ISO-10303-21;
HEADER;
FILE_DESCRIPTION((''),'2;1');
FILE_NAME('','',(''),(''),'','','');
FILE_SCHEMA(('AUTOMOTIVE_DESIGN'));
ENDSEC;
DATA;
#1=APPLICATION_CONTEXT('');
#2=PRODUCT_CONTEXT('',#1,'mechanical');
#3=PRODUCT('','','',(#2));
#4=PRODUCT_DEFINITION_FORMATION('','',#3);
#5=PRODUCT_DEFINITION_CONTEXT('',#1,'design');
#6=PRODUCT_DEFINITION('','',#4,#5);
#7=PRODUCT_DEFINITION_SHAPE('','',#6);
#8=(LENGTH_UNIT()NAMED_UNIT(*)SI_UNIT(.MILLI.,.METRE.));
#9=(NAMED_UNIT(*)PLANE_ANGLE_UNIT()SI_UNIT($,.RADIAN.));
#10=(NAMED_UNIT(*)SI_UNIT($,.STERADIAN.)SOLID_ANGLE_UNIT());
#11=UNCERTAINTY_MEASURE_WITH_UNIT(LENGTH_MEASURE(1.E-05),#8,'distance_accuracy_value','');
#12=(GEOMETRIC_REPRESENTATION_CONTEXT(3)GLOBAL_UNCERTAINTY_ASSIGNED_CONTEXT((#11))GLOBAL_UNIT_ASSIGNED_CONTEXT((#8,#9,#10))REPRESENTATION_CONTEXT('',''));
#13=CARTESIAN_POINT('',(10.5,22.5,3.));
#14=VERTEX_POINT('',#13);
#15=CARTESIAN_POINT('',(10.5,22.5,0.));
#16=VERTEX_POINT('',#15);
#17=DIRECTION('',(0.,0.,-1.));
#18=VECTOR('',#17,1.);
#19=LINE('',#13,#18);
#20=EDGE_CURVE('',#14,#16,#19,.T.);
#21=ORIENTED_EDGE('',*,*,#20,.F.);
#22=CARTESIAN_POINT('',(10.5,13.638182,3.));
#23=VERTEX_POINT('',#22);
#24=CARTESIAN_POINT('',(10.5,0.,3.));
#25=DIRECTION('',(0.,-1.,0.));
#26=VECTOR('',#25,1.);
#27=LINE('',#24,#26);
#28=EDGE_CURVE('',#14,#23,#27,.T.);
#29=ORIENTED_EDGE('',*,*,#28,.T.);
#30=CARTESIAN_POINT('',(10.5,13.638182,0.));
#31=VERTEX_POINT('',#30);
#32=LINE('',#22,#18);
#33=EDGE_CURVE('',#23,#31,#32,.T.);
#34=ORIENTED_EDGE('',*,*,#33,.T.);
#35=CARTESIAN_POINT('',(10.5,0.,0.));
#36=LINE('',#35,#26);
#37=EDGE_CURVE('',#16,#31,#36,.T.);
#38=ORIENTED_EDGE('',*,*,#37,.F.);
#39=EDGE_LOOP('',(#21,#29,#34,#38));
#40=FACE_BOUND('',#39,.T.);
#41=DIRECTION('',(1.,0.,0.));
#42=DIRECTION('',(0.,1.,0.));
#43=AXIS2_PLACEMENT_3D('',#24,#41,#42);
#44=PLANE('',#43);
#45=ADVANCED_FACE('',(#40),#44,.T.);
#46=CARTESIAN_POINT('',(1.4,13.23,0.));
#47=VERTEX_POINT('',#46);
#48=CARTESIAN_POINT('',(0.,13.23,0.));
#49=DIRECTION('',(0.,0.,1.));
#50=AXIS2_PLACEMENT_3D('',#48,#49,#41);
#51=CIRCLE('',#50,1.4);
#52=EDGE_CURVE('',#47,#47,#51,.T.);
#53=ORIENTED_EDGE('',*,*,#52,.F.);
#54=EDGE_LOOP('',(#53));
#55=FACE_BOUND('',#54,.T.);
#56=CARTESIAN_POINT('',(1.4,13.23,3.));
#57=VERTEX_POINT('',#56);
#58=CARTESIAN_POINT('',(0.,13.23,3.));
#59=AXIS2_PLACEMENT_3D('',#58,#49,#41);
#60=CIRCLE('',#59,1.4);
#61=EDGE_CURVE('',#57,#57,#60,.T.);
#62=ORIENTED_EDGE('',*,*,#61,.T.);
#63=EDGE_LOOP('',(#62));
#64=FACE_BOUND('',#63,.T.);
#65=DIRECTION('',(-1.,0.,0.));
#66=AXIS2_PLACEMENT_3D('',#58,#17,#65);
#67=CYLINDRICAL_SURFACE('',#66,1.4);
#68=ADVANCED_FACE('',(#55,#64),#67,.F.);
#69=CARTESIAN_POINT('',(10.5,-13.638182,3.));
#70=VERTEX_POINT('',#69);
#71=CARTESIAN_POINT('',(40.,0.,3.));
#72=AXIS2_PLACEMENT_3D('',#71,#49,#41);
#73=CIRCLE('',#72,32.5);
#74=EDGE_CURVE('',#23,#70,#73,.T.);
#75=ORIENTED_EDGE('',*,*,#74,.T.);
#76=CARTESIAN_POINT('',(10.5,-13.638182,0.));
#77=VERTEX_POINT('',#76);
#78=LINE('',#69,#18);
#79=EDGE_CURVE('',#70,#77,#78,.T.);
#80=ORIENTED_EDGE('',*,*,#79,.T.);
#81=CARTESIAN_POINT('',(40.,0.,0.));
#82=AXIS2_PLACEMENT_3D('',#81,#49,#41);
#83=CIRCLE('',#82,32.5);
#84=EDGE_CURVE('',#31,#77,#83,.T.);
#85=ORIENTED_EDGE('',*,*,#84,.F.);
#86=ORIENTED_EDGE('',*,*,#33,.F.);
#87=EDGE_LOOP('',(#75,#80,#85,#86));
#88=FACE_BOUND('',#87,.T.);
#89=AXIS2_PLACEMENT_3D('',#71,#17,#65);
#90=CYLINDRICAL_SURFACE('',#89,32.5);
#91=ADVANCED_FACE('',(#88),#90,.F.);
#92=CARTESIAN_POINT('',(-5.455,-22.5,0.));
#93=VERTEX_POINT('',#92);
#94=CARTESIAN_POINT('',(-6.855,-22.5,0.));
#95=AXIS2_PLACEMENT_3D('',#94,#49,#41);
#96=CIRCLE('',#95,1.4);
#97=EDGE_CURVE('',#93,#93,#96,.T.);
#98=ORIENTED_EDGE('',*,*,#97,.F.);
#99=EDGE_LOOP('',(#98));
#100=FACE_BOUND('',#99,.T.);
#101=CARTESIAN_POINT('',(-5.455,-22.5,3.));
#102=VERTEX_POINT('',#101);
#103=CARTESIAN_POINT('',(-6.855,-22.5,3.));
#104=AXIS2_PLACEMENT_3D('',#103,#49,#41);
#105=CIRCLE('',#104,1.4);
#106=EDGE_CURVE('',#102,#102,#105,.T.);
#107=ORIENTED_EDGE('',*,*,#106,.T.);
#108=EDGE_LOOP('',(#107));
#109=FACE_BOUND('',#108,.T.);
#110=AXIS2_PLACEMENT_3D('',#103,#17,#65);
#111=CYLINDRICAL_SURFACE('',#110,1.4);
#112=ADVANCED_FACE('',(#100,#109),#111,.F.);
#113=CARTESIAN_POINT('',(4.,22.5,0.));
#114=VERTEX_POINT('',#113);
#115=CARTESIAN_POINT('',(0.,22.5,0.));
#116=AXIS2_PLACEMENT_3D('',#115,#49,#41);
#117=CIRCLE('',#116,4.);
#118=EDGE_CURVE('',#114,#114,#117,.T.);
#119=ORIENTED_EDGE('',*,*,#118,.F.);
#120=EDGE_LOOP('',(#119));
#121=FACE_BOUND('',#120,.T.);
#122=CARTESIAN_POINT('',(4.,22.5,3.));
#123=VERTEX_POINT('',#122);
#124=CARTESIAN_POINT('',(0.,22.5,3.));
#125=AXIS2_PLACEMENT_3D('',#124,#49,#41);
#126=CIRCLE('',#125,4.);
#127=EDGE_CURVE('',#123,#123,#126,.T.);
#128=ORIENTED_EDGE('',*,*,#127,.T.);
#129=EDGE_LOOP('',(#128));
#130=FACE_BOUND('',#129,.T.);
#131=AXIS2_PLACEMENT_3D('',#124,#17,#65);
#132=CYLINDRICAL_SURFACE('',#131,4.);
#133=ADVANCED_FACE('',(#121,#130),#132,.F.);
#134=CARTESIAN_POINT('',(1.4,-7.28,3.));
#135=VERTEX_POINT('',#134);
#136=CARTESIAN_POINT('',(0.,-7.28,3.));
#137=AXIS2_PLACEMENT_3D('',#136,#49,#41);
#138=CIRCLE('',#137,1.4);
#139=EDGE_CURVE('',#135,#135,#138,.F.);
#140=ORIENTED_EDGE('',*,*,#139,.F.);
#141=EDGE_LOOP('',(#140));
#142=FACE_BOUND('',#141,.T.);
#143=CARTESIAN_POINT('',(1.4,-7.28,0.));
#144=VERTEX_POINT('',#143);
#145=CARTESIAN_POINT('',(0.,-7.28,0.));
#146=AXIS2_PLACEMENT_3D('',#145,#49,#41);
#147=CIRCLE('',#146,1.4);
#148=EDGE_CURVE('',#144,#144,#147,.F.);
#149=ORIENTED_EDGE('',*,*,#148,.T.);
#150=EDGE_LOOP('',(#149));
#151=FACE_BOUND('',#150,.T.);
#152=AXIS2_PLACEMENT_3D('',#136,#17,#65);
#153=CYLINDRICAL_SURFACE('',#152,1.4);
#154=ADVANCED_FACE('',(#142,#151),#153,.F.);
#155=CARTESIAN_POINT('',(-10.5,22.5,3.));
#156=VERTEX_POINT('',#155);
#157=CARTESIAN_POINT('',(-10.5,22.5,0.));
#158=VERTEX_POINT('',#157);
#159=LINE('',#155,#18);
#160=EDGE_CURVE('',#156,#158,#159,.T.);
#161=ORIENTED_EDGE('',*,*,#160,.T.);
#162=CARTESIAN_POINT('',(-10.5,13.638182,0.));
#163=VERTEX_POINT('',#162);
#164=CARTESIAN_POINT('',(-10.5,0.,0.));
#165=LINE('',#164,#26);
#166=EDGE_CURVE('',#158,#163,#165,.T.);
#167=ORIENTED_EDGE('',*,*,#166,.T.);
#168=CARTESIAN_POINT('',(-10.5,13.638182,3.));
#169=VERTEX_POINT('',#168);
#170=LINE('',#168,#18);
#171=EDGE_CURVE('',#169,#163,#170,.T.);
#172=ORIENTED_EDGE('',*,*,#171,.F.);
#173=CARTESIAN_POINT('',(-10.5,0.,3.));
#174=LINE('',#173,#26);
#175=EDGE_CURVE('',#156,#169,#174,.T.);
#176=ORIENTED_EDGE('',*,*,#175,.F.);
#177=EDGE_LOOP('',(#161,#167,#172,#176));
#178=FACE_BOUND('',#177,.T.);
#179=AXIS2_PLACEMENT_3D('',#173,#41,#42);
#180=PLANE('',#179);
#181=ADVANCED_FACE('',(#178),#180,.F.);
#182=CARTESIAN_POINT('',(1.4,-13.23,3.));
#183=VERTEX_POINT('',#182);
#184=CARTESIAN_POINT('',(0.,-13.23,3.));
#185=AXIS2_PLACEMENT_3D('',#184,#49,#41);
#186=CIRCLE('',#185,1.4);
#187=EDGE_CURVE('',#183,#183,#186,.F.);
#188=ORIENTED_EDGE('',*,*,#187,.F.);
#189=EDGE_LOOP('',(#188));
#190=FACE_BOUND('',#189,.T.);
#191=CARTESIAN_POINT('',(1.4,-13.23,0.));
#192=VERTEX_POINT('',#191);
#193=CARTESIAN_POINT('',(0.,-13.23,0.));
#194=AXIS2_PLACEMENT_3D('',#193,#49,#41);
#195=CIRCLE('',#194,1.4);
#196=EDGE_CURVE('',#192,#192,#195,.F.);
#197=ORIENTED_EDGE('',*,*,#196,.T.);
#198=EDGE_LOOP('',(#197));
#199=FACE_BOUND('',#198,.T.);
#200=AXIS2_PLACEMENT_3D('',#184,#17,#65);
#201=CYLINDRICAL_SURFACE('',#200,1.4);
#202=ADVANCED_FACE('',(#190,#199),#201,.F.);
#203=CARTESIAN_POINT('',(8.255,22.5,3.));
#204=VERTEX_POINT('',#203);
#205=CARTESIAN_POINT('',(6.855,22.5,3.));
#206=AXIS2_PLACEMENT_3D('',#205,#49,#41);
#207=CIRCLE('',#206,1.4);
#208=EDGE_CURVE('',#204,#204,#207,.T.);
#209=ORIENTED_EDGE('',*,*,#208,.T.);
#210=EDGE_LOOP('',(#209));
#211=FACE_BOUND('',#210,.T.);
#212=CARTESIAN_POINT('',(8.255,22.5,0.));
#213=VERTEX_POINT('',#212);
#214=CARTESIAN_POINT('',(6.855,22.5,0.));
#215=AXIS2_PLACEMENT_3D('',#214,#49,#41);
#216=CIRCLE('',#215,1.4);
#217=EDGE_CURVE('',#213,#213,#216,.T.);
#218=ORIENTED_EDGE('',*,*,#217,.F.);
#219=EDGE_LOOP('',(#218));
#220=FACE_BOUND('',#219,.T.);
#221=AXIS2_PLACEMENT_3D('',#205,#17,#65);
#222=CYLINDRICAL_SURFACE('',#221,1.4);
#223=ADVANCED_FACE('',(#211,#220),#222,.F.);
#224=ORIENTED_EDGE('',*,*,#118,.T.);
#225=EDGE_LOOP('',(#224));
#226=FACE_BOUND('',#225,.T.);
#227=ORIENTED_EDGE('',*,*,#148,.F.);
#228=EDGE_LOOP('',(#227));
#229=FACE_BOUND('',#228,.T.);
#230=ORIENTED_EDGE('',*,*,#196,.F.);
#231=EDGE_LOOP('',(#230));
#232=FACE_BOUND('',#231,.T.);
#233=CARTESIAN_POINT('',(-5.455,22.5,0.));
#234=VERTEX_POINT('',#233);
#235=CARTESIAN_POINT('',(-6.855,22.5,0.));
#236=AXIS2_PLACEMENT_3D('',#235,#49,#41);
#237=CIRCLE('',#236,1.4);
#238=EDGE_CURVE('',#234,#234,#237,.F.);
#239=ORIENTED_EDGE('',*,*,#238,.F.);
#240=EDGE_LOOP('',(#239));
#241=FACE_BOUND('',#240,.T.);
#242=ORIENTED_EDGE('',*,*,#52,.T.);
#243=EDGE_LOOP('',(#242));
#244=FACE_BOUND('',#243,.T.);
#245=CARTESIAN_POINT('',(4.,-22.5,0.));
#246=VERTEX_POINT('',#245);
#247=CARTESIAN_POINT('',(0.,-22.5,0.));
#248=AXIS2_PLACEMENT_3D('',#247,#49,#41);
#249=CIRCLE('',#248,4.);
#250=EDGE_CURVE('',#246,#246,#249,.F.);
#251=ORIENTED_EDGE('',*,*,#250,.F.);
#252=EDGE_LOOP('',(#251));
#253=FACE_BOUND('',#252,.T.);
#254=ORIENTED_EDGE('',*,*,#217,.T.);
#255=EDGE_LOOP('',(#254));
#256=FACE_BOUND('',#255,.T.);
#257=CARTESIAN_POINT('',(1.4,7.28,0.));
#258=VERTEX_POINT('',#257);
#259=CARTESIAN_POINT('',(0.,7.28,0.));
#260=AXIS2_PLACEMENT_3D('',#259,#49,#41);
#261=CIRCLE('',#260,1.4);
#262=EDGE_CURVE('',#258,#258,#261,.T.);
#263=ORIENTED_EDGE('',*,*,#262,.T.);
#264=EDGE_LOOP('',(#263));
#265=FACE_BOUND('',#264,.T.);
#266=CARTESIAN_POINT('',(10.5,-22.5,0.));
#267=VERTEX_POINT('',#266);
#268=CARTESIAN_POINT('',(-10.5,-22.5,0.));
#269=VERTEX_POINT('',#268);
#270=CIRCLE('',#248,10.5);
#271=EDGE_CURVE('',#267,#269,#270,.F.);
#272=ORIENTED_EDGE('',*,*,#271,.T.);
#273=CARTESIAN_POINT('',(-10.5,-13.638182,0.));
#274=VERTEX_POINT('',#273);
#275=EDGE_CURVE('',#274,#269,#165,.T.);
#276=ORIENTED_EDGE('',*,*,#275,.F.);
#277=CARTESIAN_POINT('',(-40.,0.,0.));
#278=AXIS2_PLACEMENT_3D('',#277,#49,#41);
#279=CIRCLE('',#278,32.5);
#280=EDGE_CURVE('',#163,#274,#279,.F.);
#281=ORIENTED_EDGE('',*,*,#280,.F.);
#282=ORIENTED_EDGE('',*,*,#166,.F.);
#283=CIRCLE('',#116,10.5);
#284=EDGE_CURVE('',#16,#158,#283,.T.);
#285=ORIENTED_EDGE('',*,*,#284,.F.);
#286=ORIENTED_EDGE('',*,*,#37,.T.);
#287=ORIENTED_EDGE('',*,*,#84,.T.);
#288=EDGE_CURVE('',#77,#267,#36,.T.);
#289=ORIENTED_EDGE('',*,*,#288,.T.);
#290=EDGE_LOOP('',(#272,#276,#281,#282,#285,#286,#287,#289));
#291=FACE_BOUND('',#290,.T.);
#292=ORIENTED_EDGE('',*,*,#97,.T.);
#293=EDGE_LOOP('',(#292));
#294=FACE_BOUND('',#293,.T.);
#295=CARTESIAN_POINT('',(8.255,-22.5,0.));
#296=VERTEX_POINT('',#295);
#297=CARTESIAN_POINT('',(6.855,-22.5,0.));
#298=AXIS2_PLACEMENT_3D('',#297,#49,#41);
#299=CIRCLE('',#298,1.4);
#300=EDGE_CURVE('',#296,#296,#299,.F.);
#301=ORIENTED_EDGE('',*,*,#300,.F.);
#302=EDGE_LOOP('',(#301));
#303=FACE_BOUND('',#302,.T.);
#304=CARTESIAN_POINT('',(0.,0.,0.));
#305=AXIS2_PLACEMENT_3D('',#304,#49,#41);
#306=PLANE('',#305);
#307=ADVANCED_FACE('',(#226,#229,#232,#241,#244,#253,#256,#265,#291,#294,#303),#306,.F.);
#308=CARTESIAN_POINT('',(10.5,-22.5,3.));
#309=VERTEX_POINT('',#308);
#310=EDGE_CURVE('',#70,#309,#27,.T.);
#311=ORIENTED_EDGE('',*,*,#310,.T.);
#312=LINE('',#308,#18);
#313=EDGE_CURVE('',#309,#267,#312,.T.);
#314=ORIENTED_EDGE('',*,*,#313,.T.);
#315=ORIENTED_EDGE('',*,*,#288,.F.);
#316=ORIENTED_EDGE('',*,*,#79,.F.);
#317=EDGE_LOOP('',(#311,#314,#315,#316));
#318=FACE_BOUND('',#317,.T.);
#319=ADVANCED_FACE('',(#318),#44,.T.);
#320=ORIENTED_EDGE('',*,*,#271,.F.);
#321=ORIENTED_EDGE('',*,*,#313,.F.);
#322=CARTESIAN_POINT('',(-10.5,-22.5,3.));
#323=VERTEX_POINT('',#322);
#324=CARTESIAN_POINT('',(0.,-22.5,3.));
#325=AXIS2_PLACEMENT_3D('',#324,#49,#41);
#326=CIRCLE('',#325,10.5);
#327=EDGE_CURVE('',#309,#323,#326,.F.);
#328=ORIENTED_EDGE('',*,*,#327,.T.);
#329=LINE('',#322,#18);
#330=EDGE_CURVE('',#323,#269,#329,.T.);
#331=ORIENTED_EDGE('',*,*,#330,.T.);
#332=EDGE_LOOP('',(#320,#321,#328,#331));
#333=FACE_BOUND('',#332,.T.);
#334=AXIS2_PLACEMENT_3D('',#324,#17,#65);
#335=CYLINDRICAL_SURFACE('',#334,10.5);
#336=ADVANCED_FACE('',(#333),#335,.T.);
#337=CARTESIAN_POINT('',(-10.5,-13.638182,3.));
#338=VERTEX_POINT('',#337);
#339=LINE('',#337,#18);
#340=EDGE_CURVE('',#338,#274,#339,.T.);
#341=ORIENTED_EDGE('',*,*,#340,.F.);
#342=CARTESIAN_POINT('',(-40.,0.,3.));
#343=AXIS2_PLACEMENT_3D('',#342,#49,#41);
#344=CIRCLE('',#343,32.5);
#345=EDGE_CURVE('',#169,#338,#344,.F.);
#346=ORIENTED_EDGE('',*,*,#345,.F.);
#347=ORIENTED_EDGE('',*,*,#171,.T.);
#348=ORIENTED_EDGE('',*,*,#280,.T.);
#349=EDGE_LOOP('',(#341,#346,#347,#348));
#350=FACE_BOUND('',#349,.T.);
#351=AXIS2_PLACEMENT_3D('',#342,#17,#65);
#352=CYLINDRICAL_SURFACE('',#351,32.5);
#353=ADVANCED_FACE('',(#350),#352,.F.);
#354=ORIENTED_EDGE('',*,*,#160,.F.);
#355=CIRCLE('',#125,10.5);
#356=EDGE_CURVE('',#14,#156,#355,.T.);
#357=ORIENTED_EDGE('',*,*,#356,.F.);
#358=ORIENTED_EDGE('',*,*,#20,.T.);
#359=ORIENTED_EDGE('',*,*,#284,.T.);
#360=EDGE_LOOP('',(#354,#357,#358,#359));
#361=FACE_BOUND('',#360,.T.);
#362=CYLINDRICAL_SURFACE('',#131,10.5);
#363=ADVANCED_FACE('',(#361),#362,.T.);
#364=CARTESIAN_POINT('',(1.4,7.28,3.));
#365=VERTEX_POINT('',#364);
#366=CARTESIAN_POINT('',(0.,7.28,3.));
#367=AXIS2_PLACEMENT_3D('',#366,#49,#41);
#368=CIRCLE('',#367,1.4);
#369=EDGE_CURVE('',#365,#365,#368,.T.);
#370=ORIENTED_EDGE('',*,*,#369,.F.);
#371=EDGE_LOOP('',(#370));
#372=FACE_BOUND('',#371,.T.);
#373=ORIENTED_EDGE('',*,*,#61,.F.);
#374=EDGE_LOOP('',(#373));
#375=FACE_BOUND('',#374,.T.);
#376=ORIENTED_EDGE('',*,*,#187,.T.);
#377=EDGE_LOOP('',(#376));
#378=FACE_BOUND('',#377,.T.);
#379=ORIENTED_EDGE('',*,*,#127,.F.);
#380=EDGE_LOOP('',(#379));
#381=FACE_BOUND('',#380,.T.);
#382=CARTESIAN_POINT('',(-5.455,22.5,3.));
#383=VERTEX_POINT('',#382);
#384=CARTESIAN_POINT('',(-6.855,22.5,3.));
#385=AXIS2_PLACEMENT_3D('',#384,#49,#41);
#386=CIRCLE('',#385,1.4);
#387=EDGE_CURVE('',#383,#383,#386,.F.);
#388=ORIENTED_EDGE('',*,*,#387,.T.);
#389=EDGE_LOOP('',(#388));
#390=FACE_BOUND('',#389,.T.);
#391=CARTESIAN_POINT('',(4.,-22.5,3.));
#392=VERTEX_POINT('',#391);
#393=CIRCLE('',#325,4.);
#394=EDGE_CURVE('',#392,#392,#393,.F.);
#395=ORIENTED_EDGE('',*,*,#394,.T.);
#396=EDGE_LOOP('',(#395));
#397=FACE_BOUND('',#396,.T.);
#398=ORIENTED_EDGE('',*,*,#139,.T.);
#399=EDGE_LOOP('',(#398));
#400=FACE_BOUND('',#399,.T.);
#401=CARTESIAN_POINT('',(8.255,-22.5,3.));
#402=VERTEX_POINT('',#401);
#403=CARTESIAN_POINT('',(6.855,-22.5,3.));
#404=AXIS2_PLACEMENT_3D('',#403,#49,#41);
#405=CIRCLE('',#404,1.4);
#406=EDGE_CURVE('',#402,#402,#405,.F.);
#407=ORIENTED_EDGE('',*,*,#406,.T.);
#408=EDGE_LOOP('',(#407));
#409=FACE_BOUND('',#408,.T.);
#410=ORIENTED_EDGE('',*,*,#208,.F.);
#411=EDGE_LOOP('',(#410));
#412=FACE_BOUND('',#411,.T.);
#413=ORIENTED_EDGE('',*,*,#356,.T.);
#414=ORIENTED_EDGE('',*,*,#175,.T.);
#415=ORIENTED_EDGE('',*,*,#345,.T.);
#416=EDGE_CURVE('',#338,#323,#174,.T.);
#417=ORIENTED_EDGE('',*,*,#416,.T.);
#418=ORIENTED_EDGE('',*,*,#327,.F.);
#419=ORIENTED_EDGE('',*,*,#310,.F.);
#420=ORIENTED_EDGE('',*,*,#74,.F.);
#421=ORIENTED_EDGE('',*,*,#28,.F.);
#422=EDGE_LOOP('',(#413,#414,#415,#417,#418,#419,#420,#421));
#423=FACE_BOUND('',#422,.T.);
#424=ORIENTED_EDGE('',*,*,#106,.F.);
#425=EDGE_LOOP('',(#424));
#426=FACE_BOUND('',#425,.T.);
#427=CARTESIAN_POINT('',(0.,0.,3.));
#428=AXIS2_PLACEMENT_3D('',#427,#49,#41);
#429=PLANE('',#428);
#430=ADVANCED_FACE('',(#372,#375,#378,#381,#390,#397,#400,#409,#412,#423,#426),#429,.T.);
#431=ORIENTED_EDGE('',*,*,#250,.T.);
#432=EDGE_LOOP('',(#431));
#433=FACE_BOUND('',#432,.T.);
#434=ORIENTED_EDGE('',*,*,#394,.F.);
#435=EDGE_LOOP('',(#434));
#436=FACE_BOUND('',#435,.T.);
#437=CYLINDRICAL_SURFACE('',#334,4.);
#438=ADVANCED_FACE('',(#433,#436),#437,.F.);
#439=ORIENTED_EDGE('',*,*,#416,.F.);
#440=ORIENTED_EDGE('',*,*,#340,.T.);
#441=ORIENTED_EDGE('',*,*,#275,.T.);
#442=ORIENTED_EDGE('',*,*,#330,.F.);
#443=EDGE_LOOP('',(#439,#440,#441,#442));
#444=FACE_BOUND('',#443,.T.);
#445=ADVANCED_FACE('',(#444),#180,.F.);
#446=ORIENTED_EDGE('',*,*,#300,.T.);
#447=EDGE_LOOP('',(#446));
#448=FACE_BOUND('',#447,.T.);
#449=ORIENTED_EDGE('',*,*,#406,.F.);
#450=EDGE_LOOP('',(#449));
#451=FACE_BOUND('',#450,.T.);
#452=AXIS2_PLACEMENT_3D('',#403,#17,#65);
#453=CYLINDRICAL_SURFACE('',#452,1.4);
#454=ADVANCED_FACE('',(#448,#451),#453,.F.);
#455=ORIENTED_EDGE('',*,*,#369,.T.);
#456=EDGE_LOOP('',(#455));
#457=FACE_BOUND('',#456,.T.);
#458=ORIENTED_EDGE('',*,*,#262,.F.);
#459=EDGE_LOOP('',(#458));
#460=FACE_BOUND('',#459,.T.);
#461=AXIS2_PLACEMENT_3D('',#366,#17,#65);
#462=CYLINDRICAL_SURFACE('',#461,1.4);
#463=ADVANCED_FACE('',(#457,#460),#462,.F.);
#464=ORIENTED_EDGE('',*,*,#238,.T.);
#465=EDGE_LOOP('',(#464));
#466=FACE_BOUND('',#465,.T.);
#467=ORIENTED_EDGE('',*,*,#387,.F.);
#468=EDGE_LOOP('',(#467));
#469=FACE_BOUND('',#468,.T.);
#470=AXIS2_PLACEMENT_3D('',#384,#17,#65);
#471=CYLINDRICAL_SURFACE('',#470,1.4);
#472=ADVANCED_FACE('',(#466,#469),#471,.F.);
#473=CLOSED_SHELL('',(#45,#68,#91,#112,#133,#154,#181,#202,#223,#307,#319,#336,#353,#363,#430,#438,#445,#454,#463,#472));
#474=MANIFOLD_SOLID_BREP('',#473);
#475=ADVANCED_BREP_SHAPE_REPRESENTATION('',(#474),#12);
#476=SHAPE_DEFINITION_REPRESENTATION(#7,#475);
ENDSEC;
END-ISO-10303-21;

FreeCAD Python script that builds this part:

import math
import FreeCAD as App
import Part
import Sketcher

V = App.Vector
Q = App.Units.Quantity

doc = App.newDocument("Part")
body = doc.addObject("PartDesign::Body", "Body")

# Sketch on XY plane
sketch1 = body.newObject("Sketcher::SketchObject", "Sketch")
sketch1.AttachmentSupport = (doc.getObject("XY_Plane"), [""])
sketch1.MapMode = "FlatFace"
sketch1.addGeometry([
    Part.LineSegment(V(10.5, -22.5, 0), V(10.5, -13.6, 0)),  # 0
    Part.ArcOfCircle(Part.Circle(V(40, 0, 0), V(0, 0, 1), 32.5), math.radians(155), math.radians(205)),  # 1
    Part.LineSegment(V(10.5, 13.6, 0), V(10.5, 22.5, 0)),  # 2
    Part.ArcOfCircle(Part.Circle(V(0, 22.5, 0), V(0, 0, 1), 10.5), math.radians(0), math.radians(180)),  # 3
    Part.LineSegment(V(-10.5, 22.5, 0), V(-10.5, 13.6, 0)),  # 4
    Part.ArcOfCircle(Part.Circle(V(-40, 0, 0), V(0, 0, 1), 32.5), math.radians(-25), math.radians(25)),  # 5
    Part.LineSegment(V(-10.5, -13.6, 0), V(-10.5, -22.5, 0)),  # 6
    Part.ArcOfCircle(Part.Circle(V(0, -22.5, 0), V(0, 0, 1), 10.5), math.radians(180), math.radians(360)),  # 7
    Part.Circle(V(6.9, -22.5, 0), V(0, 0, 1), 1.4),  # 8
    Part.Circle(V(0, -22.5, 0), V(0, 0, 1), 4),  # 9
    Part.Circle(V(-6.9, -22.5, 0), V(0, 0, 1), 1.4),  # 10
    Part.Circle(V(0, -13.2, 0), V(0, 0, 1), 1.4),  # 11
    Part.Circle(V(0, -7.3, 0), V(0, 0, 1), 1.4),  # 12
    Part.Circle(V(6.9, 22.5, 0), V(0, 0, 1), 1.4),  # 13
    Part.Circle(V(0, 7.3, 0), V(0, 0, 1), 1.4),  # 14
    Part.Circle(V(0, 13.2, 0), V(0, 0, 1), 1.4),  # 15
    Part.Circle(V(0, 22.5, 0), V(0, 0, 1), 4),  # 16
    Part.Circle(V(-6.9, 22.5, 0), V(0, 0, 1), 1.4),  # 17
], False)
sketch1.addConstraint([
    Sketcher.Constraint("Coincident", 0, 2, 1, 2),
    Sketcher.Constraint("Coincident", 1, 1, 2, 1),
    Sketcher.Constraint("Tangent", 2, 2, 3, 1),
    Sketcher.Constraint("Tangent", 3, 2, 4, 1),
    Sketcher.Constraint("Coincident", 4, 2, 5, 2),
    Sketcher.Constraint("Coincident", 5, 1, 6, 1),
    Sketcher.Constraint("Tangent", 6, 2, 7, 1),
    Sketcher.Constraint("Tangent", 7, 2, 0, 1),
    Sketcher.Constraint("Vertical", 0),
    Sketcher.Constraint("Vertical", 2),
    Sketcher.Constraint("Vertical", 4),
    Sketcher.Constraint("Vertical", 6),
    Sketcher.Constraint("Coincident", 9, 3, 7, 3),
    Sketcher.Constraint("Coincident", 16, 3, 3, 3),
    Sketcher.Constraint("Equal", 1, 5),
    Sketcher.Constraint("Equal", 3, 7),
    Sketcher.Constraint("Equal", 8, 10),
    Sketcher.Constraint("Equal", 10, 11),
    Sketcher.Constraint("Equal", 11, 12),
    Sketcher.Constraint("Equal", 12, 13),
    Sketcher.Constraint("Equal", 13, 14),
    Sketcher.Constraint("Equal", 14, 15),
    Sketcher.Constraint("Equal", 9, 16),
    Sketcher.Constraint("Equal", 15, 17),
    Sketcher.Constraint("Symmetric", 1, 3, 5, 3, -1, 1),
    Sketcher.Constraint("Symmetric", 3, 3, 7, 3, -1, 1),
    Sketcher.Constraint("Symmetric", 10, 3, 13, 3, -1, 1),
    Sketcher.Constraint("Symmetric", 12, 3, 14, 3, -1, 1),
    Sketcher.Constraint("Symmetric", 11, 3, 15, 3, -1, 1),
    Sketcher.Constraint("Symmetric", 8, 3, 17, 3, -1, 1),
    Sketcher.Constraint("Symmetric", 8, 3, 10, 3, -2),
    Sketcher.Constraint("Symmetric", 1, 1, 4, 2, -2),
    Sketcher.Constraint("PointOnObject", 11, 3, -2),
    Sketcher.Constraint("PointOnObject", 12, 3, -2),
    Sketcher.Constraint("Horizontal", 7, 3, 8, 3),
    Sketcher.Constraint("Diameter", 9, Q("8 mm")),
    Sketcher.Constraint("Diameter", 8, Q("2.8 mm")),
    Sketcher.Constraint("Radius", 1, Q("32.5 mm")),
    Sketcher.Constraint("Radius", 3, Q("10.5 mm")),
    Sketcher.Constraint("DistanceX", -1, 1, 1, 3, Q("40 mm")),
    Sketcher.Constraint("DistanceY", 7, 3, 3, 3, Q("45 mm")),
    Sketcher.Constraint("DistanceY", 11, 3, -1, 1, Q("13.23 mm")),
    Sketcher.Constraint("DistanceY", 12, 3, -1, 1, Q("7.28 mm")),
    Sketcher.Constraint("DistanceX", 10, 3, 8, 3, Q("13.71 mm")),
])
pad1 = body.newObject("PartDesign::Pad", "Pad")
pad1.Profile = sketch1
pad1.Length = 3

doc.recompute()
